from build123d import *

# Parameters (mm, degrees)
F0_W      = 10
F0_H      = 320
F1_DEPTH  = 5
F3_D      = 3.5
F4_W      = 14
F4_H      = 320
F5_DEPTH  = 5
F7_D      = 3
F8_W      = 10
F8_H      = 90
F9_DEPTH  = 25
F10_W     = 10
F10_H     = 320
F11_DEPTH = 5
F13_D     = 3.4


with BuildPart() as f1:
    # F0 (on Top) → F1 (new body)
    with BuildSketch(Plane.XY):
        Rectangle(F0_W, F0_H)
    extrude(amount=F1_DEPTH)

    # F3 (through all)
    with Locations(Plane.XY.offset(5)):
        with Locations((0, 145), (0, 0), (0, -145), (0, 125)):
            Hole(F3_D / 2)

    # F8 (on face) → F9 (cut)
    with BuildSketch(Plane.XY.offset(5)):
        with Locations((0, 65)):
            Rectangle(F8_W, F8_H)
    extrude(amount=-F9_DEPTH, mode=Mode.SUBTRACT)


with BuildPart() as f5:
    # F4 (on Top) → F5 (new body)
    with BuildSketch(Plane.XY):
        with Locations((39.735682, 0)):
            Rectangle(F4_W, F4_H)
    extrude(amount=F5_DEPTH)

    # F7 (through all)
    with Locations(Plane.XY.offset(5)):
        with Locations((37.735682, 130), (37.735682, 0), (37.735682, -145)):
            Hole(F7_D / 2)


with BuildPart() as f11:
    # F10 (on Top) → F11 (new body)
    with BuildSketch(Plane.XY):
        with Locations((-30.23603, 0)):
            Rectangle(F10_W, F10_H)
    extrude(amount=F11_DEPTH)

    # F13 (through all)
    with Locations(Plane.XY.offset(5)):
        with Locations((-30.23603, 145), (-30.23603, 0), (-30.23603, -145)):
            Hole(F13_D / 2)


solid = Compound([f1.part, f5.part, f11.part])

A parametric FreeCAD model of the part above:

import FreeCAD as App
import Part
import Sketcher
from FreeCAD import Vector

doc = App.newDocument("Part")
body = doc.addObject("PartDesign::Body", "Body")
body.AllowCompound = True

# Sketch on XY plane
sketch1 = body.newObject("Sketcher::SketchObject", "Sketch")
sketch1.AttachmentSupport = (doc.getObject("XY_Plane"), [""])
sketch1.MapMode = "FlatFace"
sketch1.addGeometry([
    Part.LineSegment(Vector(-5, 160, 0), Vector(-5, -160, 0)),
    Part.LineSegment(Vector(-5, -160, 0), Vector(5, -160, 0)),
    Part.LineSegment(Vector(5, -160, 0), Vector(5, 160, 0)),
    Part.LineSegment(Vector(5, 160, 0), Vector(-5, 160, 0)),
], False)
sketch1.addConstraint([
    Sketcher.Constraint("Coincident", 0, 2, 1, 1),
    Sketcher.Constraint("Coincident", 1, 2, 2, 1),
    Sketcher.Constraint("Coincident", 2, 2, 3, 1),
    Sketcher.Constraint("Coincident", 3, 2, 0, 1),
    Sketcher.Constraint("Vertical", 0),
    Sketcher.Constraint("Horizontal", 1),
    Sketcher.Constraint("Vertical", 2),
    Sketcher.Constraint("Horizontal", 3),
    Sketcher.Constraint("Symmetric", 0, 2, 2, 2, -1, 1),
    Sketcher.Constraint("DistanceX", 1, 1, 1, 2, 10.0),
    Sketcher.Constraint("DistanceY", 0, 2, 0, 1, 320.0),
])
pad1 = body.newObject("PartDesign::Pad", "Pad")
pad1.Profile = sketch1
pad1.Length = 5

# Sketch on XY plane
sketch2 = body.newObject("Sketcher::SketchObject", "Sketch001")
sketch2.AttachmentSupport = (doc.getObject("XY_Plane"), [""])
sketch2.MapMode = "FlatFace"
sketch2.AttachmentOffset = App.Placement(Vector(0, 0, 5), App.Rotation())
sketch2.addGeometry([
    Part.Circle(Vector(0, 145, 0), Vector(0, 0, 1), 1.8),
    Part.Circle(Vector(0, 0, 0), Vector(0, 0, 1), 1.8),
    Part.Circle(Vector(0, -145, 0), Vector(0, 0, 1), 1.8),
    Part.Circle(Vector(0, 125, 0), Vector(0, 0, 1), 1.8),
], False)
sketch2.addConstraint([
    Sketcher.Constraint("Coincident", 1, 3, -1, 1),
    Sketcher.Constraint("Equal", 0, 1),
    Sketcher.Constraint("Equal", 1, 2),
    Sketcher.Constraint("Equal", 2, 3),
    Sketcher.Constraint("Symmetric", 0, 3, 2, 3, -1, 1),
    Sketcher.Constraint("PointOnObject", 0, 3, -2),
    Sketcher.Constraint("PointOnObject", 3, 3, -2),
    Sketcher.Constraint("Diameter", 0, 3.5),
    Sketcher.Constraint("DistanceY", -1, 1, 0, 3, 145.0),
    Sketcher.Constraint("DistanceY", -1, 1, 3, 3, 125.0),
])
doc.recompute()
hole = body.newObject("PartDesign::Hole", "Hole")
hole.Profile = sketch2
hole.ThreadType = "None"
hole.Diameter = 3.5
hole.DepthType = "ThroughAll"

# Sketch on XY plane
sketch3 = body.newObject("Sketcher::SketchObject", "Sketch002")
sketch3.AttachmentSupport = (doc.getObject("XY_Plane"), [""])
sketch3.MapMode = "FlatFace"
sketch3.AttachmentOffset = App.Placement(Vector(0, 0, 5), App.Rotation())
sketch3.addGeometry([
    Part.LineSegment(Vector(-5, 110, 0), Vector(-5, 20, 0)),
    Part.LineSegment(Vector(-5, 20, 0), Vector(5, 20, 0)),
    Part.LineSegment(Vector(5, 20, 0), Vector(5, 110, 0)),
    Part.LineSegment(Vector(5, 110, 0), Vector(-5, 110, 0)),
], False)
sketch3.addConstraint([
    Sketcher.Constraint("Coincident", 0, 2, 1, 1),
    Sketcher.Constraint("Coincident", 1, 2, 2, 1),
    Sketcher.Constraint("Coincident", 2, 2, 3, 1),
    Sketcher.Constraint("Coincident", 3, 2, 0, 1),
    Sketcher.Constraint("Vertical", 0),
    Sketcher.Constraint("Horizontal", 1),
    Sketcher.Constraint("Vertical", 2),
    Sketcher.Constraint("Horizontal", 3),
    Sketcher.Constraint("DistanceX", 1, 1, 1, 2, 10.0),
    Sketcher.Constraint("DistanceY", 0, 2, 0, 1, 90.0),
    Sketcher.Constraint("DistanceX", 0, 2, -1, 1, 5.0),
    Sketcher.Constraint("DistanceY", -1, 1, 0, 2, 20.0),
])
pocket1 = body.newObject("PartDesign::Pocket", "Pocket")
pocket1.Profile = sketch3
pocket1.Length = 25
body2 = doc.addObject("PartDesign::Body", "Body001")

# Sketch on XY plane
sketch4 = body2.newObject("Sketcher::SketchObject", "Sketch003")
sketch4.AttachmentSupport = (doc.getObject("XY_Plane001"), [""])
sketch4.MapMode = "FlatFace"
sketch4.addGeometry([
    Part.LineSegment(Vector(33, 160, 0), Vector(33, -160, 0)),
    Part.LineSegment(Vector(33, -160, 0), Vector(47, -160, 0)),
    Part.LineSegment(Vector(47, -160, 0), Vector(47, 160, 0)),
    Part.LineSegment(Vector(47, 160, 0), Vector(33, 160, 0)),
], False)
sketch4.addConstraint([
    Sketcher.Constraint("Coincident", 0, 2, 1, 1),
    Sketcher.Constraint("Coincident", 1, 2, 2, 1),
    Sketcher.Constraint("Coincident", 2, 2, 3, 1),
    Sketcher.Constraint("Coincident", 3, 2, 0, 1),
    Sketcher.Constraint("Vertical", 0),
    Sketcher.Constraint("Horizontal", 1),
    Sketcher.Constraint("Vertical", 2),
    Sketcher.Constraint("Horizontal", 3),
    Sketcher.Constraint("DistanceX", 1, 1, 1, 2, 14.0),
    Sketcher.Constraint("DistanceY", 0, 2, 0, 1, 320.0),
    Sketcher.Constraint("DistanceY", 0, 2, -1, 1, 160.0),
    Sketcher.Constraint("DistanceX", -1, 1, 0, 2, 32.735682),
])
pad2 = body2.newObject("PartDesign::Pad", "Pad001")
pad2.Profile = sketch4
pad2.Length = 5

# Sketch on XY plane
sketch5 = body2.newObject("Sketcher::SketchObject", "Sketch004")
sketch5.AttachmentSupport = (doc.getObject("XY_Plane001"), [""])
sketch5.MapMode = "FlatFace"
sketch5.AttachmentOffset = App.Placement(Vector(0, 0, 5), App.Rotation())
sketch5.addGeometry([
    Part.Circle(Vector(37.7, 130, 0), Vector(0, 0, 1), 1.5),
    Part.Circle(Vector(37.7, 0, 0), Vector(0, 0, 1), 1.5),
    Part.Circle(Vector(37.7, -145, 0), Vector(0, 0, 1), 1.5),
], False)
sketch5.addConstraint([
    Sketcher.Constraint("Equal", 0, 1),
    Sketcher.Constraint("Equal", 1, 2),
    Sketcher.Constraint("PointOnObject", 1, 3, -1),
    Sketcher.Constraint("Vertical", 0, 3, 1, 3),
    Sketcher.Constraint("Vertical", 1, 3, 2, 3),
    Sketcher.Constraint("Diameter", 0, 3.0),
    Sketcher.Constraint("DistanceY", -1, 1, 0, 3, 130.0),
    Sketcher.Constraint("DistanceY", 2, 3, -1, 1, 145.0),
    Sketcher.Constraint("DistanceX", -1, 1, 0, 3, 37.735682),
])
doc.recompute()
hole2 = body2.newObject("PartDesign::Hole", "Hole001")
hole2.Profile = sketch5
hole2.ThreadType = "None"
hole2.Diameter = 3
hole2.DepthType = "ThroughAll"
body3 = doc.addObject("PartDesign::Body", "Body002")

# Sketch on XY plane
sketch6 = body3.newObject("Sketcher::SketchObject", "Sketch005")
sketch6.AttachmentSupport = (doc.getObject("XY_Plane002"), [""])
sketch6.MapMode = "FlatFace"
sketch6.addGeometry([
    Part.LineSegment(Vector(-35, 160, 0), Vector(-35, -160, 0)),
    Part.LineSegment(Vector(-35, -160, 0), Vector(-25, -160, 0)),
    Part.LineSegment(Vector(-25, -160, 0), Vector(-25, 160, 0)),
    Part.LineSegment(Vector(-25, 160, 0), Vector(-35, 160, 0)),
], False)
sketch6.addConstraint([
    Sketcher.Constraint("Coincident", 0, 2, 1, 1),
    Sketcher.Constraint("Coincident", 1, 2, 2, 1),
    Sketcher.Constraint("Coincident", 2, 2, 3, 1),
    Sketcher.Constraint("Coincident", 3, 2, 0, 1),
    Sketcher.Constraint("Vertical", 0),
    Sketcher.Constraint("Horizontal", 1),
    Sketcher.Constraint("Vertical", 2),
    Sketcher.Constraint("Horizontal", 3),
    Sketcher.Constraint("DistanceX", 1, 1, 1, 2, 10.0),
    Sketcher.Constraint("DistanceY", 0, 2, 0, 1, 320.0),
    Sketcher.Constraint("DistanceY", 0, 2, -1, 1, 160.0),
    Sketcher.Constraint("DistanceX", 0, 2, -1, 1, 35.23603),
])
pad3 = body3.newObject("PartDesign::Pad", "Pad002")
pad3.Profile = sketch6
pad3.Length = 5

# Sketch on XY plane
sketch7 = body3.newObject("Sketcher::SketchObject", "Sketch006")
sketch7.AttachmentSupport = (doc.getObject("XY_Plane002"), [""])
sketch7.MapMode = "FlatFace"
sketch7.AttachmentOffset = App.Placement(Vector(0, 0, 5), App.Rotation())
sketch7.addGeometry([
    Part.Circle(Vector(-30.2, 145, 0), Vector(0, 0, 1), 1.7),
    Part.Circle(Vector(-30.2, 0, 0), Vector(0, 0, 1), 1.7),
    Part.Circle(Vector(-30.2, -145, 0), Vector(0, 0, 1), 1.7),
], False)
sketch7.addConstraint([
    Sketcher.Constraint("Equal", 0, 1),
    Sketcher.Constraint("Equal", 1, 2),
    Sketcher.Constraint("Symmetric", 0, 3, 2, 3, -1),
    Sketcher.Constraint("PointOnObject", 1, 3, -1),
    Sketcher.Constraint("Vertical", 0, 3, 1, 3),
    Sketcher.Constraint("Diameter", 0, 3.4),
    Sketcher.Constraint("DistanceY", -1, 1, 0, 3, 145.0),
    Sketcher.Constraint("DistanceX", 0, 3, -1, 1, 30.23603),
])
doc.recompute()
hole3 = body3.newObject("PartDesign::Hole", "Hole002")
hole3.Profile = sketch7
hole3.ThreadType = "None"
hole3.Diameter = 3.4
hole3.DepthType = "ThroughAll"

doc.recompute()
